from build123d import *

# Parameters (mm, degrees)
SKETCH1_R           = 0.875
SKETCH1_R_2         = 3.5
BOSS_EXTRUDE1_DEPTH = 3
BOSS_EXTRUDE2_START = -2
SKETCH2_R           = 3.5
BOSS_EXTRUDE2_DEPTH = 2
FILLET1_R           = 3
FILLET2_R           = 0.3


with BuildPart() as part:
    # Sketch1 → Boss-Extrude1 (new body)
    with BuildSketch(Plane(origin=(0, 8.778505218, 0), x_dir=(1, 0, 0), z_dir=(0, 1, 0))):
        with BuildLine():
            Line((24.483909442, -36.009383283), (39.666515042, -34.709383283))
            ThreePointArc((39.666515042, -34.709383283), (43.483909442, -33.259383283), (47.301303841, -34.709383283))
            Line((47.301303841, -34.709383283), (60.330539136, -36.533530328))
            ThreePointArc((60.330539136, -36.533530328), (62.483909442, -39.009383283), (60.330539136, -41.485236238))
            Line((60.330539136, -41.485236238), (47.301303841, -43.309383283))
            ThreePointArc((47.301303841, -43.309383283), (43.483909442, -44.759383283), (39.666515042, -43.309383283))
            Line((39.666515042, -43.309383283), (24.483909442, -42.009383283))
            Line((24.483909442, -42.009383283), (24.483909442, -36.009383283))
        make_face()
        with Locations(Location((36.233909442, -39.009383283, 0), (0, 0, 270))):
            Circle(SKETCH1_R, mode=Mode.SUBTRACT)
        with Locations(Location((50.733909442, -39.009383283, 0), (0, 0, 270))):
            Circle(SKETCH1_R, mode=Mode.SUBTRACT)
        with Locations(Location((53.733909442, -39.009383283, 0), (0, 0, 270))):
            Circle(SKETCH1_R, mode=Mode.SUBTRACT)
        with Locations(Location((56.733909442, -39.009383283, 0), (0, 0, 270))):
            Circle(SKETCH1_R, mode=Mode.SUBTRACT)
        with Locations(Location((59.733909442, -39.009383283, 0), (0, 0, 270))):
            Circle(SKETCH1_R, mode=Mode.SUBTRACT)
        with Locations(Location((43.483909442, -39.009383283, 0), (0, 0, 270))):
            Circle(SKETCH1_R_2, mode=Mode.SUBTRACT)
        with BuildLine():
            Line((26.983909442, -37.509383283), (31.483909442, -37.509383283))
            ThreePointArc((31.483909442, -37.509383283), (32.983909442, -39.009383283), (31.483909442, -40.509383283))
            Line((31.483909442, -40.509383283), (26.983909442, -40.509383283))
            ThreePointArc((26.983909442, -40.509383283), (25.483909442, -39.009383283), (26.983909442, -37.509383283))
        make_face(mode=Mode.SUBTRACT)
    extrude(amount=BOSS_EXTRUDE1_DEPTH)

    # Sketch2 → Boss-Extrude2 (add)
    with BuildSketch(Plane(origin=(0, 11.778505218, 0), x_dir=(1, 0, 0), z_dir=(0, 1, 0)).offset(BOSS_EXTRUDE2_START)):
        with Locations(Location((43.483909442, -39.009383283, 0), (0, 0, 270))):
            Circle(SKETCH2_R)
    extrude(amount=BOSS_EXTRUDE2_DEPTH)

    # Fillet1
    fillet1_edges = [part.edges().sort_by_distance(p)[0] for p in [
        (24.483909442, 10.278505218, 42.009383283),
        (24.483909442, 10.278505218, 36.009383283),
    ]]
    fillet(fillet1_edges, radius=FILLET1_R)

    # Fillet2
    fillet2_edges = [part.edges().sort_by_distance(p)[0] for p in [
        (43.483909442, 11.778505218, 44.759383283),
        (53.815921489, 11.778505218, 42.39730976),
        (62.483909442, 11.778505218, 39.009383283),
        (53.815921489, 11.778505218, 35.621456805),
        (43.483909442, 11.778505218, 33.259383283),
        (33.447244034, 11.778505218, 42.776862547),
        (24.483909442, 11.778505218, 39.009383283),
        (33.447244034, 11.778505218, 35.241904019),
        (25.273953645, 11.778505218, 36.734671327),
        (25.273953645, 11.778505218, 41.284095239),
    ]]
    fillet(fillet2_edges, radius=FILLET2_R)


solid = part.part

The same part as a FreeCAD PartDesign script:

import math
import FreeCAD as App
import Part
import Sketcher

V = App.Vector
Q = App.Units.Quantity


def edges_at(feature, points):
    """Names of the edges that pass closest to the given points."""
    edges = feature.Shape.Edges
    near = lambda p: min(range(len(edges)), key=lambda i: edges[i].distToShape(Part.Vertex(*p))[0])
    return sorted({f"Edge{near(p) + 1}" for p in points})

doc = App.newDocument("Part")
body = doc.addObject("PartDesign::Body", "Body")

# Sketch on XZ plane
sketch1 = body.newObject("Sketcher::SketchObject", "Sketch")
sketch1.AttachmentSupport = (doc.getObject("XZ_Plane"), [""])
sketch1.MapMode = "FlatFace"
sketch1.AttachmentOffset = App.Placement(V(0, 0, -8.778505), App.Rotation())
sketch1.addGeometry([
    Part.LineSegment(V(39.666515, 34.709383, 0), V(24.483909, 36.009383, 0)),  # 0
    Part.LineSegment(V(24.483909, 36.009383, 0), V(24.483909, 42.009383, 0)),  # 1
    Part.LineSegment(V(24.483909, 42.009383, 0), V(39.666515, 43.309383, 0)),  # 2
    Part.ArcOfCircle(Part.Circle(V(43.483909, 39.009383, 0), V(0, 0, 1), 5.75), math.radians(48.402416), math.radians(131.597584)),  # 3
    Part.LineSegment(V(47.301304, 43.309383, 0), V(60.330539, 41.485236, 0)),  # 4
    Part.ArcOfCircle(Part.Circle(V(59.983909, 39.009383, 0), V(0, 0, 1), 2.5), math.radians(-82.030156), math.radians(82.030156)),  # 5
    Part.LineSegment(V(60.330539, 36.53353, 0), V(47.301304, 34.709383, 0)),  # 6
    Part.ArcOfCircle(Part.Circle(V(43.483909, 39.009383, 0), V(0, 0, 1), 5.75), math.radians(-131.597584), math.radians(-48.402416)),  # 7
    Part.Circle(V(59.733909, 39.009383, 0), V(0, 0, 1), 0.875),  # 8
    Part.Circle(V(56.733909, 39.009383, 0), V(0, 0, 1), 0.875),  # 9
    Part.Circle(V(53.733909, 39.009383, 0), V(0, 0, 1), 0.875),  # 10
    Part.Circle(V(50.733909, 39.009383, 0), V(0, 0, 1), 0.875),  # 11
    Part.Circle(V(43.483909, 39.009383, 0), V(0, 0, 1), 3.5),  # 12
    Part.Circle(V(36.233909, 39.009383, 0), V(0, 0, 1), 0.875),  # 13
    Part.LineSegment(V(26.983909, 37.509383, 0), V(31.483909, 37.509383, 0)),  # 14
    Part.ArcOfCircle(Part.Circle(V(31.483909, 39.009383, 0), V(0, 0, 1), 1.5), math.radians(-90), math.radians(90)),  # 15
    Part.LineSegment(V(31.483909, 40.509383, 0), V(26.983909, 40.509383, 0)),  # 16
    Part.ArcOfCircle(Part.Circle(V(26.983909, 39.009383, 0), V(0, 0, 1), 1.5), math.radians(90), math.radians(270)),  # 17
], False)
sketch1.addConstraint([
    Sketcher.Constraint("Coincident", 0, 2, 1, 1),
    Sketcher.Constraint("Coincident", 1, 2, 2, 1),
    Sketcher.Constraint("Coincident", 2, 2, 3, 2),
    Sketcher.Constraint("Coincident", 3, 1, 4, 1),
    Sketcher.Constraint("Tangent", 4, 2, 5, 2),
    Sketcher.Constraint("Tangent", 5, 1, 6, 1),
    Sketcher.Constraint("Coincident", 6, 2, 7, 2),
    Sketcher.Constraint("Coincident", 7, 1, 0, 1),
    Sketcher.Constraint("Tangent", 14, 2, 15, 1),
    Sketcher.Constraint("Tangent", 15, 2, 16, 1),
    Sketcher.Constraint("Tangent", 16, 2, 17, 1),
    Sketcher.Constraint("Tangent", 17, 2, 14, 1),
    Sketcher.Constraint("Vertical", 1),
    Sketcher.Constraint("Horizontal", 14),
    Sketcher.Constraint("Horizontal", 16),
    Sketcher.Constraint("Coincident", 7, 3, 3, 3),
    Sketcher.Constraint("Coincident", 12, 3, 3, 3),
    Sketcher.Constraint("Equal", 3, 7),
    Sketcher.Constraint("Equal", 8, 9),
    Sketcher.Constraint("Equal", 9, 10),
    Sketcher.Constraint("Equal", 10, 11),
    Sketcher.Constraint("Equal", 11, 13),
    Sketcher.Constraint("Horizontal", 3, 3, 5, 3),
    Sketcher.Constraint("Horizontal", 7, 3, 8, 3),
    Sketcher.Constraint("Horizontal", 8, 3, 9, 3),
    Sketcher.Constraint("Horizontal", 9, 3, 10, 3),
    Sketcher.Constraint("Horizontal", 10, 3, 11, 3),
    Sketcher.Constraint("Horizontal", 12, 3, 13, 3),
    Sketcher.Constraint("Horizontal", 13, 3, 15, 3),
    Sketcher.Constraint("Horizontal", 2, 2, 3, 1),
    Sketcher.Constraint("Horizontal", 6, 2, 7, 1),
    Sketcher.Constraint("Vertical", 4, 2, 5, 1),
    Sketcher.Constraint("Equal", 0, 2),
    Sketcher.Constraint("Diameter", 12, Q("7 mm")),
    Sketcher.Constraint("Radius", 5, Q("2.5 mm")),
    Sketcher.Constraint("Radius", 15, Q("1.5 mm")),
    Sketcher.Constraint("Diameter", 8, Q("1.75 mm")),
    Sketcher.Constraint("DistanceY", 1, 1, 1, 2, Q("6 mm")),
    Sketcher.Constraint("Radius", 3, Q("5.75 mm")),
    Sketcher.Constraint("DistanceX", 14, 1, 14, 2, Q("4.5 mm")),
    Sketcher.Constraint("DistanceX", 9, 3, 8, 3, Q("3 mm")),
    Sketcher.Constraint("DistanceX", 10, 3, 9, 3, Q("3 mm")),
    Sketcher.Constraint("DistanceX", 11, 3, 10, 3, Q("3 mm")),
    Sketcher.Constraint("DistanceX", 15, 3, 3, 3, Q("12 mm")),
    Sketcher.Constraint("DistanceX", 0, 2, 15, 3, Q("7 mm")),
    Sketcher.Constraint("DistanceX", 3, 3, 5, 3, Q("16.5 mm")),
    Sketcher.Constraint("DistanceX", 13, 3, 11, 3, Q("14.5 mm")),
    Sketcher.Constraint("DistanceY", 13, 3, 2, 2, Q("4.3 mm")),
    Sketcher.Constraint("DistanceX", 8, 3, 5, 3, Q("0.25 mm")),
    Sketcher.Constraint("DistanceX", -1, 1, 3, 3, Q("43.483909 mm")),
    Sketcher.Constraint("DistanceY", -1, 1, 5, 1, Q("36.53353 mm")),
])
pad1 = body.newObject("PartDesign::Pad", "Pad")
pad1.Profile = sketch1
pad1.Length = 3
pad1.Reversed = True

# Sketch on XZ plane
sketch2 = body.newObject("Sketcher::SketchObject", "Sketch001")
sketch2.AttachmentSupport = (doc.getObject("XZ_Plane"), [""])
sketch2.MapMode = "FlatFace"
sketch2.AttachmentOffset = App.Placement(V(0, 0, -9.778505), App.Rotation())
sketch2.addGeometry(Part.Circle(V(43.483909, 39.009383, 0), V(0, 0, 1), 3.5), False)
sketch2.addConstraint([
    Sketcher.Constraint("Diameter", 0, Q("7 mm")),
    Sketcher.Constraint("DistanceX", -1, 1, 0, 3, Q("43.483909 mm")),
    Sketcher.Constraint("DistanceY", -1, 1, 0, 3, Q("39.009383 mm")),
])
pad2 = body.newObject("PartDesign::Pad", "Pad001")
pad2.Profile = sketch2
pad2.Length = 2
pad2.Reversed = True
doc.recompute()

fillet = body.newObject("PartDesign::Fillet", "Fillet")
fillet.Base = (pad2, edges_at(pad2, [(24.484, 10.279, 42.009), (24.484, 10.279, 36.009)]))
fillet.Radius = 3
doc.recompute()

fillet2 = body.newObject("PartDesign::Fillet", "Fillet001")
fillet2.Base = (fillet, edges_at(fillet, [
    (43.484, 11.779, 44.759),
    (53.816, 11.779, 42.397),
    (62.484, 11.779, 39.009),
    (53.816, 11.779, 35.621),
    (43.484, 11.779, 33.259),
    (33.447, 11.779, 42.777),
    (24.484, 11.779, 39.009),
    (33.447, 11.779, 35.242),
    (25.274, 11.779, 36.735),
    (25.274, 11.779, 41.284),
]))
fillet2.Radius = 0.3

doc.recompute()
